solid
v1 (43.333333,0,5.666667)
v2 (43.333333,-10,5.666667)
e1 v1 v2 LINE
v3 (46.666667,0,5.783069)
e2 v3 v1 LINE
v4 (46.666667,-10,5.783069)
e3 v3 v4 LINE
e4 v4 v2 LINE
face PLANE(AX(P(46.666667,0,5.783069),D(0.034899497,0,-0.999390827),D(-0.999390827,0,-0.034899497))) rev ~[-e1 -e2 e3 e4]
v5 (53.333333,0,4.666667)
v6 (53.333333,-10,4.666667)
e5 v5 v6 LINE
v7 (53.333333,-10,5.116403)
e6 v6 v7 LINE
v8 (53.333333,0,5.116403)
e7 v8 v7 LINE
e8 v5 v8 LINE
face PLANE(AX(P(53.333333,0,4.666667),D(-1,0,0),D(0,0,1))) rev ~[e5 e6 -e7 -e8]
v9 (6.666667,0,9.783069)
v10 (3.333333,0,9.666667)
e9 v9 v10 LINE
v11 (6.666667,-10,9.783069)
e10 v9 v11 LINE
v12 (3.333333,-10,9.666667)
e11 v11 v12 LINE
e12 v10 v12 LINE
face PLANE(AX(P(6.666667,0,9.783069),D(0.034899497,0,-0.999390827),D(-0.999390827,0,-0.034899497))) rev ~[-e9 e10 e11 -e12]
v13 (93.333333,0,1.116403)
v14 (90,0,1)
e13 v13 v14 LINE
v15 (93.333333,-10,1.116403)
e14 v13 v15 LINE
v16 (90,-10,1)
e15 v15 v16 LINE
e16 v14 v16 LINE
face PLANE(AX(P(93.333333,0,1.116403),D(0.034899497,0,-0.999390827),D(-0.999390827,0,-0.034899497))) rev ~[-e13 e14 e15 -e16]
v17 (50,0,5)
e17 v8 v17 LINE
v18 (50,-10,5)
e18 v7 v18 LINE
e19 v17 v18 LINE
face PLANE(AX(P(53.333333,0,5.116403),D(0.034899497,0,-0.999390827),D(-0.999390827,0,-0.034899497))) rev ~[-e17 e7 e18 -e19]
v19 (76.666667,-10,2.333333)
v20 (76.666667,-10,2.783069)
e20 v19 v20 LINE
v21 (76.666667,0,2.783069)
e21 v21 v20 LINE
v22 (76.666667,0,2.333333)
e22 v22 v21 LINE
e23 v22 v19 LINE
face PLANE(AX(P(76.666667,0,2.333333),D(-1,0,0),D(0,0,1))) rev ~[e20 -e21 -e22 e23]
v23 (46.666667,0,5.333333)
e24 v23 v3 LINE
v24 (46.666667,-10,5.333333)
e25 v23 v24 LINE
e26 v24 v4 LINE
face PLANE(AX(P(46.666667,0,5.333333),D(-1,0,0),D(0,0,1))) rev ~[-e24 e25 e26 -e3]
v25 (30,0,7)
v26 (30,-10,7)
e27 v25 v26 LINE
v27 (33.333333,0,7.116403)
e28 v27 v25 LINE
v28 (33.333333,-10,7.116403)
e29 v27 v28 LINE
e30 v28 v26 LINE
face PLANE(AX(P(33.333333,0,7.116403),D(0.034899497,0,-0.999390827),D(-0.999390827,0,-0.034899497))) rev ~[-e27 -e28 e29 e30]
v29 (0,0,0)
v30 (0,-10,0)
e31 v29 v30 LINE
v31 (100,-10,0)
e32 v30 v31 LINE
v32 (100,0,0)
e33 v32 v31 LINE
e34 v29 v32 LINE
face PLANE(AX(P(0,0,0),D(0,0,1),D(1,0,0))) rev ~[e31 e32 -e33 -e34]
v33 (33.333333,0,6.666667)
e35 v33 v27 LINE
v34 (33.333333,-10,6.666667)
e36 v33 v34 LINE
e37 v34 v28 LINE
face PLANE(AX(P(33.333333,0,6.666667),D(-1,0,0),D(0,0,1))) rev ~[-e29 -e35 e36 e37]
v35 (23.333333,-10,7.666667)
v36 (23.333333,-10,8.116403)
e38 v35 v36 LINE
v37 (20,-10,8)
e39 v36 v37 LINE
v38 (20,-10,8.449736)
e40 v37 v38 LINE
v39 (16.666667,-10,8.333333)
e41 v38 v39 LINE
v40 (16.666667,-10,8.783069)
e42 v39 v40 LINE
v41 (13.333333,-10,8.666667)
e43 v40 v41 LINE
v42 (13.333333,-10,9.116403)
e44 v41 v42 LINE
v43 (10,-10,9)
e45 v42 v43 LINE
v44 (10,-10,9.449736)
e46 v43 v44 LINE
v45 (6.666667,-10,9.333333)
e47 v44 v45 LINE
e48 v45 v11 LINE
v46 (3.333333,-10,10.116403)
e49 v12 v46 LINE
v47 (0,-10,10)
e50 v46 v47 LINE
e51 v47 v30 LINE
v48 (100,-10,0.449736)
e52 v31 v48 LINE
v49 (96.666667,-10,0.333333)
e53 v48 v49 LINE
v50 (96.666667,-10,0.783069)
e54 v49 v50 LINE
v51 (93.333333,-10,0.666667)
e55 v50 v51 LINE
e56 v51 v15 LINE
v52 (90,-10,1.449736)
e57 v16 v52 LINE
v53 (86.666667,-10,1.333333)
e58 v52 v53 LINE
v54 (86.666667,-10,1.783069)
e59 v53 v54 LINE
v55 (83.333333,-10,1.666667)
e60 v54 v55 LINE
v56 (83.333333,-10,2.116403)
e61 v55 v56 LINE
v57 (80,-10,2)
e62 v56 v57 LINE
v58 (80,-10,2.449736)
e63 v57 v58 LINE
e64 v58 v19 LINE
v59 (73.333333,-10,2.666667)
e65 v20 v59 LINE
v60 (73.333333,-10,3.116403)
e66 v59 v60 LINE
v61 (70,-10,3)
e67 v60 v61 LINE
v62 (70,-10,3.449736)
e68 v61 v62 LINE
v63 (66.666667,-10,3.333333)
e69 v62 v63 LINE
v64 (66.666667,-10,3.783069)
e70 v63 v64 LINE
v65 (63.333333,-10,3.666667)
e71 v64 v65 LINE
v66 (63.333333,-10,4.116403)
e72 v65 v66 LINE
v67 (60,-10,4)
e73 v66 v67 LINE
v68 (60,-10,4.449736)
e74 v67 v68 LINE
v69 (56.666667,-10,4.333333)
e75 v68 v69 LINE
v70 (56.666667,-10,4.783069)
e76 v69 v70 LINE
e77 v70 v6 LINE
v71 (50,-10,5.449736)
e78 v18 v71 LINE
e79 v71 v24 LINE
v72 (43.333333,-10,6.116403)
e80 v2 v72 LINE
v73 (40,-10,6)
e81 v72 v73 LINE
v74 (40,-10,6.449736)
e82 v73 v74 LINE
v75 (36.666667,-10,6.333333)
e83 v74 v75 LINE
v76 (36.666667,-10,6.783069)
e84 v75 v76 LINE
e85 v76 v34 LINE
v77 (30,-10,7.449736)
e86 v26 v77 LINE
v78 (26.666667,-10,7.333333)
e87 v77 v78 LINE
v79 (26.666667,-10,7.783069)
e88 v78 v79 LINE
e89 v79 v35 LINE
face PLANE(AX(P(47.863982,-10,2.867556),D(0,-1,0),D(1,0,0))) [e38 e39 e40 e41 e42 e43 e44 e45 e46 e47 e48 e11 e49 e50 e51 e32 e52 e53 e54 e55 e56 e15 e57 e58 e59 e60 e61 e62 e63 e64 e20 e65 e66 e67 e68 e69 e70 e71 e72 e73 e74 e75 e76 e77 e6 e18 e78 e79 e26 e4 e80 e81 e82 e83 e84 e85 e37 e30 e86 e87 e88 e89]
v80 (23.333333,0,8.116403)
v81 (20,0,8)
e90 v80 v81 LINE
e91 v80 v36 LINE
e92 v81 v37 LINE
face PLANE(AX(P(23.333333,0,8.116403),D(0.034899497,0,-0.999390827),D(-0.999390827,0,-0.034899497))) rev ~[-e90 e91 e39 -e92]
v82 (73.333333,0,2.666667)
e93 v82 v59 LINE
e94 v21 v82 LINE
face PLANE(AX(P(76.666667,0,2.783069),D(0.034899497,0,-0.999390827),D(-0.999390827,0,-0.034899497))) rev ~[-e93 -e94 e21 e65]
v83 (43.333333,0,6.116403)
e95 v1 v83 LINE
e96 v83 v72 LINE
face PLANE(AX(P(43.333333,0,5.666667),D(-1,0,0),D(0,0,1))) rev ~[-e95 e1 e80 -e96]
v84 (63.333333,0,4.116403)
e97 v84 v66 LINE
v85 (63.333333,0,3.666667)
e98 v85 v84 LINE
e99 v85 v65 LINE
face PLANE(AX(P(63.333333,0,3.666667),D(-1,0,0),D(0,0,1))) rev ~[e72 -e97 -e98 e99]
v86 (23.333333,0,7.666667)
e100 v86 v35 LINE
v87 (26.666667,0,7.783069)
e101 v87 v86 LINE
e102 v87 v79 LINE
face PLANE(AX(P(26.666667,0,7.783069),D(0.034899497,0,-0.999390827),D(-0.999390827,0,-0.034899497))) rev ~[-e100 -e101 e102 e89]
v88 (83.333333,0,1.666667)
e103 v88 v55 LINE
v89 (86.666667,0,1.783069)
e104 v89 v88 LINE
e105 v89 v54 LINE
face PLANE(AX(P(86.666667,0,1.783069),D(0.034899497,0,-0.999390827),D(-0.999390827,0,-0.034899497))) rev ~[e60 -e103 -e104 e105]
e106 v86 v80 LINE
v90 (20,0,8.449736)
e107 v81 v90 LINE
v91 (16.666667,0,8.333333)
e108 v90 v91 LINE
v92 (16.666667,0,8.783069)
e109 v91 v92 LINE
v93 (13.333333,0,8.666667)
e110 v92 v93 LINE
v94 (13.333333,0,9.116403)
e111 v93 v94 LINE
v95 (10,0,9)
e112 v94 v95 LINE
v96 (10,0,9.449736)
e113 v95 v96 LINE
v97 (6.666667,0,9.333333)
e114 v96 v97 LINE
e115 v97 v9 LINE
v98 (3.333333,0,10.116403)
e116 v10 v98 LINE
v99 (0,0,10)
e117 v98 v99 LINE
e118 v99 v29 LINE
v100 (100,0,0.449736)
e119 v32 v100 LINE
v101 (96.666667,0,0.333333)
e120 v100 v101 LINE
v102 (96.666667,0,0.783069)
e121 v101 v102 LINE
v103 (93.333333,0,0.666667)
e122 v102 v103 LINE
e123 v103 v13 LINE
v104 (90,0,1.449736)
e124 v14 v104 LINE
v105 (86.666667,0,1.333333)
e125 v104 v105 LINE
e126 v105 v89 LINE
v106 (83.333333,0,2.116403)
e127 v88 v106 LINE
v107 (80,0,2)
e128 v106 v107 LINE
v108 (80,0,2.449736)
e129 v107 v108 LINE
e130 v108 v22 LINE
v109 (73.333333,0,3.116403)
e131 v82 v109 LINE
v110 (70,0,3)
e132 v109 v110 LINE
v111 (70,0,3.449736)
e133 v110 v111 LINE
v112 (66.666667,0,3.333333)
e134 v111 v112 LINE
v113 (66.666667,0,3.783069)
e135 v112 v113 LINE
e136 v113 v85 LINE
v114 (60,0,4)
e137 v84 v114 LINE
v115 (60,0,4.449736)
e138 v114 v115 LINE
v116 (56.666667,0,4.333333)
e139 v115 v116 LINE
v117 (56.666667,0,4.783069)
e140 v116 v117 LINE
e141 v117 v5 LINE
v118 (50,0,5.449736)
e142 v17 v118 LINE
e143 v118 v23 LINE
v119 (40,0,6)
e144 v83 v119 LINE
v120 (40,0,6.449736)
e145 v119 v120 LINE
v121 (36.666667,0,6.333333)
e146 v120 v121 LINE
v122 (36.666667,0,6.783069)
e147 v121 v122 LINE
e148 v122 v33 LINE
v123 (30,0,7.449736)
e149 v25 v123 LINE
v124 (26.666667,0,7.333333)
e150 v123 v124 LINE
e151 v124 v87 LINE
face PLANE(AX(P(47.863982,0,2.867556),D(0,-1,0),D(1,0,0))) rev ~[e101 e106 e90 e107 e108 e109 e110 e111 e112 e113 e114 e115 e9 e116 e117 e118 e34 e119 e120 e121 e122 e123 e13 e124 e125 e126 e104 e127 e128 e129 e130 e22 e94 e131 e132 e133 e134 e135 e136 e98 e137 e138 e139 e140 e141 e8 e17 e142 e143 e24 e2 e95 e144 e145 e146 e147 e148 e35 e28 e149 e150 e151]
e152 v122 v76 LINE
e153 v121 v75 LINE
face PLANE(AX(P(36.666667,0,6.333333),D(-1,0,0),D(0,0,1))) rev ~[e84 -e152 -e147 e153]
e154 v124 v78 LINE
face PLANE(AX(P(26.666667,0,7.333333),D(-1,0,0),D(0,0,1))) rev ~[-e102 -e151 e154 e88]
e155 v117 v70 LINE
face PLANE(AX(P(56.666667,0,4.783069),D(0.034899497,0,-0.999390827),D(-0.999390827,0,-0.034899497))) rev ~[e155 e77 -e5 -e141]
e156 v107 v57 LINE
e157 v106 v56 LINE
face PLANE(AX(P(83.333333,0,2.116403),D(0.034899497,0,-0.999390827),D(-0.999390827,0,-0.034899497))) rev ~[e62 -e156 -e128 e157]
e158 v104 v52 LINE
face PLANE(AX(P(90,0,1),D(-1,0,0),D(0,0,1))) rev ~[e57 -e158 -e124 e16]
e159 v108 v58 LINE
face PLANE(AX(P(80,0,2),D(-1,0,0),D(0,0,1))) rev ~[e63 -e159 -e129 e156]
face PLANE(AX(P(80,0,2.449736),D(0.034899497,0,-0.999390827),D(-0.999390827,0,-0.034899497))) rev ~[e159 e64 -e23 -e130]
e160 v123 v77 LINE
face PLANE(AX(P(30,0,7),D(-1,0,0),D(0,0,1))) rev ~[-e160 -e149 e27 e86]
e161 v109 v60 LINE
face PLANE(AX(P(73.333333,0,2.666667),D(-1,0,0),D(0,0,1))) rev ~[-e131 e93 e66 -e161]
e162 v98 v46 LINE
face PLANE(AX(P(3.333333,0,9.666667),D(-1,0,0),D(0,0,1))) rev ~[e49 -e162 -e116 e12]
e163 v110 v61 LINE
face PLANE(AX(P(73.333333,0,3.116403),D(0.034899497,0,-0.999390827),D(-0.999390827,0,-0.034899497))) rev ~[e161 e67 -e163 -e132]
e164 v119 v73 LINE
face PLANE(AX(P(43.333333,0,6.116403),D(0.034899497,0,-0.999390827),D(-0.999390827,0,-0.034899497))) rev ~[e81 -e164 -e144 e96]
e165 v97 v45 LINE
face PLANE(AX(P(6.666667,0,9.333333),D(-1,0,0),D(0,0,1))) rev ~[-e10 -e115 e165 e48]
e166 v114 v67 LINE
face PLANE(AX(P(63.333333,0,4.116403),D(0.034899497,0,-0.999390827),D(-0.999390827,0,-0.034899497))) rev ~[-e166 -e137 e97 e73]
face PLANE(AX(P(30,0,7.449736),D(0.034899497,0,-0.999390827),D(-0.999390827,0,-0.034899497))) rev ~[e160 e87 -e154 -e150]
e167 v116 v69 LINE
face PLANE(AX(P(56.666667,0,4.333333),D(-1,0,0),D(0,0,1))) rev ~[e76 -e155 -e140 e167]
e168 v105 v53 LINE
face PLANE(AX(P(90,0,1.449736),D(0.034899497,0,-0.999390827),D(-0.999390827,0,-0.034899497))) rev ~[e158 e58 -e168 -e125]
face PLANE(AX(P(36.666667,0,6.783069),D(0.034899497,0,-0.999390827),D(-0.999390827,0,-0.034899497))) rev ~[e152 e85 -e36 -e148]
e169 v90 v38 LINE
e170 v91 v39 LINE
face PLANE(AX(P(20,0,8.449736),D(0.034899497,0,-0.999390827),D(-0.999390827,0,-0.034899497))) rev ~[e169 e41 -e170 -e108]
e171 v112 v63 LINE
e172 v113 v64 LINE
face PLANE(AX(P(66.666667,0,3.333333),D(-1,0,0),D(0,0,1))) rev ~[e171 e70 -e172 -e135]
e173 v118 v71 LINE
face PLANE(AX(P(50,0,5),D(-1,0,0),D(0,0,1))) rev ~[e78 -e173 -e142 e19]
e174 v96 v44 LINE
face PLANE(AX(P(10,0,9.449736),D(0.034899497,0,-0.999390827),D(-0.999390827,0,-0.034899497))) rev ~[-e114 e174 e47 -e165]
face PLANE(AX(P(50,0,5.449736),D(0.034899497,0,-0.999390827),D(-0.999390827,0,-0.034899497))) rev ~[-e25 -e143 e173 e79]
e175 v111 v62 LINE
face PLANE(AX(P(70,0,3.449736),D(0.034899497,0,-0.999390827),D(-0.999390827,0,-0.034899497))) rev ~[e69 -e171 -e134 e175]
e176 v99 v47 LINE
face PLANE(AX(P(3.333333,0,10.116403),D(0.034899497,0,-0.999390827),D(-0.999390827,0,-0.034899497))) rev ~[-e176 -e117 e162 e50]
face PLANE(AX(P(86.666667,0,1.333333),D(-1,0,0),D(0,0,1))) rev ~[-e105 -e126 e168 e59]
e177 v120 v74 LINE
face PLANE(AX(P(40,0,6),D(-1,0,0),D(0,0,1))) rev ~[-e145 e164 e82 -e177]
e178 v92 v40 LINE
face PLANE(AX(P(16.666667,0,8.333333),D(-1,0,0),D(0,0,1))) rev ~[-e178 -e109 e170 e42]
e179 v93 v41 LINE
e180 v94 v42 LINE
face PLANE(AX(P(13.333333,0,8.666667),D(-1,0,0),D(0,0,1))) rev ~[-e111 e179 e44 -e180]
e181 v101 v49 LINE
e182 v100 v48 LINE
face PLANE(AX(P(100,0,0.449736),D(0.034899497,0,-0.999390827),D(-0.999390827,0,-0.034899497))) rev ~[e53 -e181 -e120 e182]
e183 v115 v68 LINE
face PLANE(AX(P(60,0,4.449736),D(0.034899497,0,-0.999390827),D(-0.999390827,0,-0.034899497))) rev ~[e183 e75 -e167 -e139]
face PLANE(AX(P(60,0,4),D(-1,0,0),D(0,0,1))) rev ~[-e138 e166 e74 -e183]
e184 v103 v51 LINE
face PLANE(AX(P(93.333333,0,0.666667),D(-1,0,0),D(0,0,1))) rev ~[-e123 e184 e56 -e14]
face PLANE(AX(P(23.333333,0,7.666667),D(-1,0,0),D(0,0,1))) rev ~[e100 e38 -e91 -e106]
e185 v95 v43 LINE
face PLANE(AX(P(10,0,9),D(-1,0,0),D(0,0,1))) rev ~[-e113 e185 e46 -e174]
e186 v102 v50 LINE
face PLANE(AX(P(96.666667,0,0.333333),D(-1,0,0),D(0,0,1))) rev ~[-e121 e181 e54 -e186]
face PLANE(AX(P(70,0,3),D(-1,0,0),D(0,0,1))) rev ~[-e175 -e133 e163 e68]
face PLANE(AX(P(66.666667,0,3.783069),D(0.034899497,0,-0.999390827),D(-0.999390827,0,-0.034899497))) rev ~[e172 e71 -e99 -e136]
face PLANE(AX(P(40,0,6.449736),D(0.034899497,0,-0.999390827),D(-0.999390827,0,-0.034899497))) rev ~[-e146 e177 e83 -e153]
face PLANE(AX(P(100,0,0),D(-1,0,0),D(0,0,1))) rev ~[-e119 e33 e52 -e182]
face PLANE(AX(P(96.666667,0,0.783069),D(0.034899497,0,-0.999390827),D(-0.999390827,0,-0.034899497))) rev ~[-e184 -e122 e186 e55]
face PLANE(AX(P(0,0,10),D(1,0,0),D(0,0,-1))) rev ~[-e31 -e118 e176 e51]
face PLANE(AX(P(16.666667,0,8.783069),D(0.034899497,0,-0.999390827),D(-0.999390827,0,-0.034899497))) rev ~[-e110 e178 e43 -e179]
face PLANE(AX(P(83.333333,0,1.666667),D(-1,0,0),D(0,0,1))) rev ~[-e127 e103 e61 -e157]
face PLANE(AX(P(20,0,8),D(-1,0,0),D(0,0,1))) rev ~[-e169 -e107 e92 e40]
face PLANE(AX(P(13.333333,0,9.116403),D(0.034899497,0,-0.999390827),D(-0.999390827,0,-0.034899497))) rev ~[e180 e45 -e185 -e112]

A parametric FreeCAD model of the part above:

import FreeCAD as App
import Part
import Sketcher
from FreeCAD import Vector
Q = App.Units.Quantity


def add_polygon(sketch, points):
    """Adds a closed chain of lines whose ends are joined by coincident constraints."""
    first, n = sketch.GeometryCount, len(points)
    for a, b in zip(points, points[1:] + points[:1]):
        sketch.addGeometry(Part.LineSegment(App.Vector(*a, 0), App.Vector(*b, 0)), False)
    for i in range(n):
        sketch.addConstraint(Sketcher.Constraint("Coincident", first + i, 2, first + (i + 1) % n, 1))

doc = App.newDocument("Part")
body = doc.addObject("PartDesign::Body", "Body")

# Sketch on XZ plane
sketch1 = doc.addObject("Sketcher::SketchObject", "Sketch")
body.addObject(sketch1)
sketch1.AttachmentSupport = (doc.XZ_Plane, [""])
sketch1.MapMode = "FlatFace"
add_polygon(sketch1, [(3.33, 10.12), (0, 10), (0, 0), (100, 0), (100, 0.45), (96.67, 0.33), (96.67, 0.78), (93.33, 0.67), (93.33, 1.12), (90, 1), (90, 1.45), (86.67, 1.33), (86.67, 1.78), (83.33, 1.67), (83.33, 2.12), (80, 2), (80, 2.45), (76.67, 2.33), (76.67, 2.78), (73.33, 2.67), (73.33, 3.12), (70, 3), (70, 3.45), (66.67, 3.33), (66.67, 3.78), (63.33, 3.67), (63.33, 4.12), (60, 4), (60, 4.45), (56.67, 4.33), (56.67, 4.78), (53.33, 4.67), (53.33, 5.12), (50, 5), (50, 5.45), (46.67, 5.33), (46.67, 5.78), (43.33, 5.67), (43.33, 6.12), (40, 6), (40, 6.45), (36.67, 6.33), (36.67, 6.78), (33.33, 6.67), (33.33, 7.12), (30, 7), (30, 7.45), (26.67, 7.33), (26.67, 7.78), (23.33, 7.67), (23.33, 8.12), (20, 8), (20, 8.45), (16.67, 8.33), (16.67, 8.78), (13.33, 8.67), (13.33, 9.12), (10, 9), (10, 9.45), (6.67, 9.33), (6.67, 9.78), (3.33, 9.67)])  # lines 0-61
sketch1.addConstraint([
    Sketcher.Constraint("Vertical", 1),
    Sketcher.Constraint("Horizontal", 2),
    Sketcher.Constraint("Vertical", 3),
    Sketcher.Constraint("Vertical", 5),
    Sketcher.Constraint("Vertical", 7),
    Sketcher.Constraint("Vertical", 9),
    Sketcher.Constraint("Vertical", 11),
    Sketcher.Constraint("Vertical", 13),
    Sketcher.Constraint("Vertical", 15),
    Sketcher.Constraint("Vertical", 17),
    Sketcher.Constraint("Vertical", 19),
    Sketcher.Constraint("Vertical", 21),
    Sketcher.Constraint("Vertical", 23),
    Sketcher.Constraint("Vertical", 25),
    Sketcher.Constraint("Vertical", 27),
    Sketcher.Constraint("Vertical", 29),
    Sketcher.Constraint("Vertical", 31),
    Sketcher.Constraint("Vertical", 33),
    Sketcher.Constraint("Vertical", 35),
    Sketcher.Constraint("Vertical", 37),
    Sketcher.Constraint("Vertical", 39),
    Sketcher.Constraint("Vertical", 41),
    Sketcher.Constraint("Vertical", 43),
    Sketcher.Constraint("Vertical", 45),
    Sketcher.Constraint("Vertical", 47),
    Sketcher.Constraint("Vertical", 49),
    Sketcher.Constraint("Vertical", 51),
    Sketcher.Constraint("Vertical", 53),
    Sketcher.Constraint("Vertical", 55),
    Sketcher.Constraint("Vertical", 57),
    Sketcher.Constraint("Vertical", 59),
    Sketcher.Constraint("Vertical", 61),
    Sketcher.Constraint("Coincident", 1, 2, -1, 1),
    Sketcher.Constraint("Parallel", 0, 4),
    Sketcher.Constraint("Parallel", 4, 6),
    Sketcher.Constraint("Parallel", 6, 8),
    Sketcher.Constraint("Parallel", 8, 10),
    Sketcher.Constraint("Parallel", 10, 12),
    Sketcher.Constraint("Parallel", 12, 14),
    Sketcher.Constraint("Parallel", 14, 16),
    Sketcher.Constraint("Parallel", 16, 18),
    Sketcher.Constraint("Parallel", 18, 20),
    Sketcher.Constraint("Parallel", 20, 22),
    Sketcher.Constraint("Parallel", 22, 24),
    Sketcher.Constraint("Parallel", 24, 26),
    Sketcher.Constraint("Parallel", 26, 28),
    Sketcher.Constraint("Parallel", 28, 30),
    Sketcher.Constraint("Parallel", 30, 32),
    Sketcher.Constraint("Parallel", 32, 34),
    Sketcher.Constraint("Parallel", 34, 36),
    Sketcher.Constraint("Parallel", 36, 38),
    Sketcher.Constraint("Parallel", 38, 40),
    Sketcher.Constraint("Parallel", 40, 42),
    Sketcher.Constraint("Parallel", 42, 44),
    Sketcher.Constraint("Parallel", 44, 46),
    Sketcher.Constraint("Parallel", 46, 48),
    Sketcher.Constraint("Parallel", 48, 50),
    Sketcher.Constraint("Parallel", 50, 52),
    Sketcher.Constraint("Parallel", 52, 54),
    Sketcher.Constraint("Parallel", 54, 56),
    Sketcher.Constraint("Parallel", 56, 58),
    Sketcher.Constraint("Parallel", 58, 60),
    Sketcher.Constraint("Equal", 3, 5),
    Sketcher.Constraint("Equal", 5, 7),
    Sketcher.Constraint("Equal", 7, 9),
    Sketcher.Constraint("Equal", 9, 11),
    Sketcher.Constraint("Equal", 11, 13),
    Sketcher.Constraint("Equal", 13, 15),
    Sketcher.Constraint("Equal", 15, 17),
    Sketcher.Constraint("Equal", 17, 19),
    Sketcher.Constraint("Equal", 19, 21),
    Sketcher.Constraint("Equal", 21, 23),
    Sketcher.Constraint("Equal", 23, 25),
    Sketcher.Constraint("Equal", 25, 27),
    Sketcher.Constraint("Equal", 27, 29),
    Sketcher.Constraint("Equal", 29, 31),
    Sketcher.Constraint("Equal", 31, 33),
    Sketcher.Constraint("Equal", 33, 35),
    Sketcher.Constraint("Equal", 35, 37),
    Sketcher.Constraint("Equal", 37, 39),
    Sketcher.Constraint("Equal", 39, 41),
    Sketcher.Constraint("Equal", 41, 43),
    Sketcher.Constraint("Equal", 43, 45),
    Sketcher.Constraint("Equal", 45, 47),
    Sketcher.Constraint("Equal", 47, 49),
    Sketcher.Constraint("Equal", 49, 51),
    Sketcher.Constraint("Equal", 51, 53),
    Sketcher.Constraint("Equal", 53, 55),
    Sketcher.Constraint("Equal", 55, 57),
    Sketcher.Constraint("Equal", 57, 59),
    Sketcher.Constraint("Equal", 59, 61),
    Sketcher.Constraint("Equal", 0, 4),
    Sketcher.Constraint("Equal", 4, 6),
    Sketcher.Constraint("Equal", 6, 8),
    Sketcher.Constraint("Equal", 8, 10),
    Sketcher.Constraint("Equal", 10, 12),
    Sketcher.Constraint("Equal", 12, 14),
    Sketcher.Constraint("Equal", 14, 16),
    Sketcher.Constraint("Equal", 16, 18),
    Sketcher.Constraint("Equal", 18, 20),
    Sketcher.Constraint("Equal", 20, 22),
    Sketcher.Constraint("Equal", 22, 24),
    Sketcher.Constraint("Equal", 24, 26),
    Sketcher.Constraint("Equal", 26, 28),
    Sketcher.Constraint("Equal", 28, 30),
    Sketcher.Constraint("Equal", 30, 32),
    Sketcher.Constraint("Equal", 32, 34),
    Sketcher.Constraint("Equal", 34, 36),
    Sketcher.Constraint("Equal", 36, 38),
    Sketcher.Constraint("Equal", 38, 40),
    Sketcher.Constraint("Equal", 40, 42),
    Sketcher.Constraint("Equal", 42, 44),
    Sketcher.Constraint("Equal", 44, 46),
    Sketcher.Constraint("Equal", 46, 48),
    Sketcher.Constraint("Equal", 48, 50),
    Sketcher.Constraint("Equal", 50, 52),
    Sketcher.Constraint("Equal", 52, 54),
    Sketcher.Constraint("Equal", 54, 56),
    Sketcher.Constraint("Equal", 56, 58),
    Sketcher.Constraint("Equal", 58, 60),
    Sketcher.Constraint("DistanceX", 2, 1, 2, 2, 100.0),
    Sketcher.Constraint("DistanceY", 1, 2, 1, 1, 10.0),
    Sketcher.Constraint("Angle", 0, Q("-178 deg")),
])
pad1 = doc.addObject("PartDesign::Pad", "Pad")
body.addObject(pad1)
pad1.Profile = sketch1
pad1.Length = 10

doc.recompute()
